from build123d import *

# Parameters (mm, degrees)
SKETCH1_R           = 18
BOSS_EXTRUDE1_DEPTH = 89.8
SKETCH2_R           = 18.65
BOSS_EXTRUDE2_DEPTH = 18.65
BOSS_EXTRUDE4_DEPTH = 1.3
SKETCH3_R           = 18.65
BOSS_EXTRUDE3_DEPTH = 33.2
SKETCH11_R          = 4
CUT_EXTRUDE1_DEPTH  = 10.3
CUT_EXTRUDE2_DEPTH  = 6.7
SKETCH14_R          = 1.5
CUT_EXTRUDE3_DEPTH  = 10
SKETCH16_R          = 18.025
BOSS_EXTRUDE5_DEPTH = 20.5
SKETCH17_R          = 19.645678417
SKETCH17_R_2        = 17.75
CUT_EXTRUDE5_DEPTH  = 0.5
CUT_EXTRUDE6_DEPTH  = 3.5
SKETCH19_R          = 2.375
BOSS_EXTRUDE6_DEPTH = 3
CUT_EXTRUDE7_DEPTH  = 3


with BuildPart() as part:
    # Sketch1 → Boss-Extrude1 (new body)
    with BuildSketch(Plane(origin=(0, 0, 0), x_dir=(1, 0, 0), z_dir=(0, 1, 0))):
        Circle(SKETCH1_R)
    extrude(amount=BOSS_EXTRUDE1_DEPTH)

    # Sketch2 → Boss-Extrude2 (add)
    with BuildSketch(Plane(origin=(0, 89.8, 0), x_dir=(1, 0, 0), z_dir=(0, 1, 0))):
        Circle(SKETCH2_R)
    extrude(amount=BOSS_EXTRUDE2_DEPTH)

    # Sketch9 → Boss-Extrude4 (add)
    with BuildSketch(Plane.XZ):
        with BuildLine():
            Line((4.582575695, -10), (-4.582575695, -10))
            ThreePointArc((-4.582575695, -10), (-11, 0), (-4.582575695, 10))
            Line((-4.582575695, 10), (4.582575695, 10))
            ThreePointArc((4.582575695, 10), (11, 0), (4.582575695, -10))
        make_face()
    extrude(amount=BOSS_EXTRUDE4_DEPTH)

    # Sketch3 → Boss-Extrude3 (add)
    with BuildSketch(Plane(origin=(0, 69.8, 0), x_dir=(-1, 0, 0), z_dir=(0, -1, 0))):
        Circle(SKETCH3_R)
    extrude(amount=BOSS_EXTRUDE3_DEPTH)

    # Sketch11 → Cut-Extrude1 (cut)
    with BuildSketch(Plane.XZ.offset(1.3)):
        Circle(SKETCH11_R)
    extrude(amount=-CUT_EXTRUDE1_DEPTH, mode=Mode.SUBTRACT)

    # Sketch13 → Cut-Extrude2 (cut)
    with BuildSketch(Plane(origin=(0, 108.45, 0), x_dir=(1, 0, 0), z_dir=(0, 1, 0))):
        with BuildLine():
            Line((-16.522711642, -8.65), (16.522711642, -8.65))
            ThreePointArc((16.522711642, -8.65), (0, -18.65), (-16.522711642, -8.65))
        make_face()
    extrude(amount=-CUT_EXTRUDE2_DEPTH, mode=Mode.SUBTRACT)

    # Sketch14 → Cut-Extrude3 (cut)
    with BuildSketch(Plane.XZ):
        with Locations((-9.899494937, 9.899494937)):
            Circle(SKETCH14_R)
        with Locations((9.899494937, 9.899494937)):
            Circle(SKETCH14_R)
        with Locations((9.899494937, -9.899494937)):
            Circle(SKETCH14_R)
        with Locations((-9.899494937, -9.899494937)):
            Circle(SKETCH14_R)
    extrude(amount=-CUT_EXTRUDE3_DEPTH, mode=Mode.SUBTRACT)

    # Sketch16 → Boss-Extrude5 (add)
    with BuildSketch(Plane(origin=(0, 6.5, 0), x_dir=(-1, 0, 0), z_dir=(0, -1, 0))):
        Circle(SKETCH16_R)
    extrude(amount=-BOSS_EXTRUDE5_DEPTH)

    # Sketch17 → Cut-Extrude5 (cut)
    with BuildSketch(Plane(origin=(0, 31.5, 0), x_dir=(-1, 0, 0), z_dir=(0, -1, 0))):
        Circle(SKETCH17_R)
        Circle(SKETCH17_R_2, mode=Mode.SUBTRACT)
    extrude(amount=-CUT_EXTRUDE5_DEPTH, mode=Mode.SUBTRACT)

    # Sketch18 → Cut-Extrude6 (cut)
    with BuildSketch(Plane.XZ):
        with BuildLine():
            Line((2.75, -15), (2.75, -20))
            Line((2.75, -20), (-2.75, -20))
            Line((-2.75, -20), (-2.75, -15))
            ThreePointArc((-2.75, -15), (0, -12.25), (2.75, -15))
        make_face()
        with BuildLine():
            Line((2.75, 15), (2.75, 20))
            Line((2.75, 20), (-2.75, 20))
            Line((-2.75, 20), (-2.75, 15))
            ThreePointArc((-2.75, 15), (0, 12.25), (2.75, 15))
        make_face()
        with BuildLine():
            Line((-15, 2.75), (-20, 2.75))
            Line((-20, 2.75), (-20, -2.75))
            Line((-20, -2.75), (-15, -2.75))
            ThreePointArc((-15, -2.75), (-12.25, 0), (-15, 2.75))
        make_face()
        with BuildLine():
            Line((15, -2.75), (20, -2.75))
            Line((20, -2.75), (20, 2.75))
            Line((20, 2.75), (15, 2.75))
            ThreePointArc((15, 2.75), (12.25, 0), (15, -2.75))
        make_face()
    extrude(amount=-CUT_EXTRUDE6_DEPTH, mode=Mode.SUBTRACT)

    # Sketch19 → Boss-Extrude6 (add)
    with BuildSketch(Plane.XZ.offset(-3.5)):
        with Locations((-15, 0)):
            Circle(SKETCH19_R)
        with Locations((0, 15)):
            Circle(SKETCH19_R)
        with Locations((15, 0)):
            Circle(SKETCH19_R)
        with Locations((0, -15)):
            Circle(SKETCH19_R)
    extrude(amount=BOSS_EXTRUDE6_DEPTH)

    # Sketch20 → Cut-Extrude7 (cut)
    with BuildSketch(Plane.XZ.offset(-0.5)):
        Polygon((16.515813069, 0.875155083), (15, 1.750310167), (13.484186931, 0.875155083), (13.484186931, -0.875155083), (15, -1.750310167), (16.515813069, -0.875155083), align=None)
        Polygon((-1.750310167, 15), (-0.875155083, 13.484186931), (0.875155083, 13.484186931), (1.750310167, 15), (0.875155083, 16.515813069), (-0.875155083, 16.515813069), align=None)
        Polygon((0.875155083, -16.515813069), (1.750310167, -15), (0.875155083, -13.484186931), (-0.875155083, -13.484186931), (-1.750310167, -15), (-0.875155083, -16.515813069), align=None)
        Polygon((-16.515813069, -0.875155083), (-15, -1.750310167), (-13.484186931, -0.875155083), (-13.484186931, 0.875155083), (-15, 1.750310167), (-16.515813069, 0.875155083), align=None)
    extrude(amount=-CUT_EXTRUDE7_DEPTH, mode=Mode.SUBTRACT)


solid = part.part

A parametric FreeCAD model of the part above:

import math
import FreeCAD as App
import Part
import Sketcher
Q = App.Units.Quantity

doc = App.newDocument("Part")
body = doc.addObject("PartDesign::Body", "Body")

sketch1 = body.newObject("Sketcher::SketchObject", "Sketch")
sketch1.AttachmentSupport = (doc.getObject("XZ_Plane"), [""])
sketch1.MapMode = "FlatFace"
sketch1.addGeometry(Part.Circle(App.Vector(0, 0, 0), App.Vector(0, 0, 1), 18), False)
sketch1.addConstraint([
    Sketcher.Constraint("Coincident", 0, 3, -1, 1),
    Sketcher.Constraint("Diameter", 0, 36.0),
])
pad1 = body.newObject("PartDesign::Pad", "Pad")
pad1.Profile = sketch1
pad1.Length = 89.8
pad1.Reversed = True

sketch2 = body.newObject("Sketcher::SketchObject", "Sketch001")
sketch2.AttachmentSupport = (doc.getObject("XZ_Plane"), [""])
sketch2.MapMode = "FlatFace"
sketch2.AttachmentOffset = App.Placement(App.Vector(0, 0, -89.8), App.Rotation())
sketch2.addGeometry(Part.Circle(App.Vector(0, 0, 0), App.Vector(0, 0, 1), 19), False)
sketch2.addConstraint([
    Sketcher.Constraint("Coincident", 0, 3, -1, 1),
    Sketcher.Constraint("Diameter", 0, 37.3),
])
pad2 = body.newObject("PartDesign::Pad", "Pad001")
pad2.Profile = sketch2
pad2.Length = 18.65
pad2.Reversed = True

sketch3 = body.newObject("Sketcher::SketchObject", "Sketch002")
sketch3.AttachmentSupport = (doc.getObject("XZ_Plane"), [""])
sketch3.MapMode = "FlatFace"
sketch3.addGeometry([
    Part.LineSegment(App.Vector(-5, -10, 0), App.Vector(5, -10, 0)),
    Part.ArcOfCircle(Part.Circle(App.Vector(0, 0, 0), App.Vector(0, 0, 1), 11), math.radians(-65), math.radians(65)),
    Part.LineSegment(App.Vector(5, 10, 0), App.Vector(-5, 10, 0)),
    Part.ArcOfCircle(Part.Circle(App.Vector(0, 0, 0), App.Vector(0, 0, 1), 11), math.radians(115), math.radians(245)),
], False)
sketch3.addConstraint([
    Sketcher.Constraint("Coincident", 0, 2, 1, 1),
    Sketcher.Constraint("Coincident", 1, 2, 2, 1),
    Sketcher.Constraint("Coincident", 2, 2, 3, 1),
    Sketcher.Constraint("Coincident", 3, 2, 0, 1),
    Sketcher.Constraint("Horizontal", 0),
    Sketcher.Constraint("Horizontal", 2),
    Sketcher.Constraint("Coincident", 1, 3, -1, 1),
    Sketcher.Constraint("Coincident", 3, 3, -1, 1),
    Sketcher.Constraint("Equal", 1, 3),
    Sketcher.Constraint("Vertical", 0, 2, 1, 2),
    Sketcher.Constraint("Radius", 1, 11.0),
    Sketcher.Constraint("DistanceY", 0, 2, -1, 1, 10.0),
])
pad3 = body.newObject("PartDesign::Pad", "Pad002")
pad3.Profile = sketch3
pad3.Length = 1.3

sketch4 = body.newObject("Sketcher::SketchObject", "Sketch003")
sketch4.AttachmentSupport = (doc.getObject("XZ_Plane"), [""])
sketch4.MapMode = "FlatFace"
sketch4.AttachmentOffset = App.Placement(App.Vector(0, 0, -69.8), App.Rotation())
sketch4.addGeometry(Part.Circle(App.Vector(0, 0, 0), App.Vector(0, 0, 1), 19), False)
sketch4.addConstraint([
    Sketcher.Constraint("Coincident", 0, 3, -1, 1),
    Sketcher.Constraint("Diameter", 0, 37.3),
])
pad4 = body.newObject("PartDesign::Pad", "Pad003")
pad4.Profile = sketch4
pad4.Length = 33.2

sketch5 = body.newObject("Sketcher::SketchObject", "Sketch004")
sketch5.AttachmentSupport = (doc.getObject("XZ_Plane"), [""])
sketch5.MapMode = "FlatFace"
sketch5.AttachmentOffset = App.Placement(App.Vector(0, 0, 1.3), App.Rotation())
sketch5.addGeometry(Part.Circle(App.Vector(0, 0, 0), App.Vector(0, 0, 1), 4), False)
sketch5.addConstraint([
    Sketcher.Constraint("Coincident", 0, 3, -1, 1),
    Sketcher.Constraint("Diameter", 0, 8.0),
])
pocket1 = body.newObject("PartDesign::Pocket", "Pocket")
pocket1.Profile = sketch5
pocket1.Length = 10.3

sketch6 = body.newObject("Sketcher::SketchObject", "Sketch005")
sketch6.AttachmentSupport = (doc.getObject("XZ_Plane"), [""])
sketch6.MapMode = "FlatFace"
sketch6.AttachmentOffset = App.Placement(App.Vector(0, 0, -108.45), App.Rotation())
sketch6.addGeometry([
    Part.LineSegment(App.Vector(17, 9, 0), App.Vector(-17, 9, 0)),
    Part.ArcOfCircle(Part.Circle(App.Vector(0, 0, 0), App.Vector(0, 0, 1), 19), math.radians(28), math.radians(152)),
], False)
sketch6.addConstraint([
    Sketcher.Constraint("Coincident", 0, 1, 1, 1),
    Sketcher.Constraint("Coincident", 1, 2, 0, 2),
    Sketcher.Constraint("Horizontal", 0),
    Sketcher.Constraint("Coincident", 1, 3, -1, 1),
    Sketcher.Constraint("Radius", 1, 18.65),
    Sketcher.Constraint("DistanceY", -1, 1, 0, 1, 8.65),
])
pocket2 = body.newObject("PartDesign::Pocket", "Pocket001")
pocket2.Profile = sketch6
pocket2.Length = 6.7
pocket2.Reversed = True

sketch7 = body.newObject("Sketcher::SketchObject", "Sketch006")
sketch7.AttachmentSupport = (doc.getObject("XZ_Plane"), [""])
sketch7.MapMode = "FlatFace"
sketch7.addGeometry([
    Part.Circle(App.Vector(-9.9, 9.9, 0), App.Vector(0, 0, 1), 1.5),
    Part.Circle(App.Vector(9.9, 9.9, 0), App.Vector(0, 0, 1), 1.5),
    Part.Circle(App.Vector(9.9, -9.9, 0), App.Vector(0, 0, 1), 1.5),
    Part.Circle(App.Vector(-9.9, -9.9, 0), App.Vector(0, 0, 1), 1.5),
], False)
sketch7.addConstraint([
    Sketcher.Constraint("Equal", 0, 1),
    Sketcher.Constraint("Equal", 1, 2),
    Sketcher.Constraint("Equal", 2, 3),
    Sketcher.Constraint("Symmetric", 0, 3, 2, 3, -1, 1),
    Sketcher.Constraint("Symmetric", 1, 3, 3, 3, -1, 1),
    Sketcher.Constraint("Symmetric", 0, 3, 1, 3, -2),
    Sketcher.Constraint("Diameter", 0, 3.0),
    Sketcher.Constraint("DistanceX", 0, 3, 1, 3, 19.79899),
    Sketcher.Constraint("DistanceY", 2, 3, 1, 3, 19.79899),
])
pocket3 = body.newObject("PartDesign::Pocket", "Pocket002")
pocket3.Profile = sketch7
pocket3.Length = 10

sketch8 = body.newObject("Sketcher::SketchObject", "Sketch007")
sketch8.AttachmentSupport = (doc.getObject("XZ_Plane"), [""])
sketch8.MapMode = "FlatFace"
sketch8.AttachmentOffset = App.Placement(App.Vector(0, 0, -6.5), App.Rotation())
sketch8.addGeometry(Part.Circle(App.Vector(0, 0, 0), App.Vector(0, 0, 1), 18), False)
sketch8.addConstraint([
    Sketcher.Constraint("Coincident", 0, 3, -1, 1),
    Sketcher.Constraint("Diameter", 0, 36.05),
])
pad5 = body.newObject("PartDesign::Pad", "Pad004")
pad5.Profile = sketch8
pad5.Length = 20.5
pad5.Reversed = True

sketch9 = body.newObject("Sketcher::SketchObject", "Sketch008")
sketch9.AttachmentSupport = (doc.getObject("XZ_Plane"), [""])
sketch9.MapMode = "FlatFace"
sketch9.AttachmentOffset = App.Placement(App.Vector(0, 0, -31.5), App.Rotation())
sketch9.addGeometry([
    Part.Circle(App.Vector(0, 0, 0), App.Vector(0, 0, 1), 20),
    Part.Circle(App.Vector(0, 0, 0), App.Vector(0, 0, 1), 18),
], False)
sketch9.addConstraint([
    Sketcher.Constraint("Coincident", 0, 3, -1, 1),
    Sketcher.Constraint("Coincident", 1, 3, -1, 1),
    Sketcher.Constraint("Diameter", 1, 35.5),
    Sketcher.Constraint("Diameter", 0, 39.291357),
])
pocket4 = body.newObject("PartDesign::Pocket", "Pocket003")
pocket4.Profile = sketch9
pocket4.Length = 0.5

sketch10 = body.newObject("Sketcher::SketchObject", "Sketch009")
sketch10.AttachmentSupport = (doc.getObject("XZ_Plane"), [""])
sketch10.MapMode = "FlatFace"
sketch10.addGeometry([
    Part.LineSegment(App.Vector(2.8, -20, 0), App.Vector(2.8, -15, 0)),
    Part.ArcOfCircle(Part.Circle(App.Vector(0, -15, 0), App.Vector(0, 0, 1), 2.8), math.radians(0), math.radians(180)),
    Part.LineSegment(App.Vector(-2.8, -15, 0), App.Vector(-2.8, -20, 0)),
    Part.LineSegment(App.Vector(-2.8, -20, 0), App.Vector(2.8, -20, 0)),
    Part.LineSegment(App.Vector(2.8, 15, 0), App.Vector(2.8, 20, 0)),
    Part.LineSegment(App.Vector(2.8, 20, 0), App.Vector(-2.8, 20, 0)),
    Part.LineSegment(App.Vector(-2.8, 20, 0), App.Vector(-2.8, 15, 0)),
    Part.ArcOfCircle(Part.Circle(App.Vector(0, 15, 0), App.Vector(0, 0, 1), 2.8), math.radians(180), math.radians(360)),
    Part.LineSegment(App.Vector(-15, 2.8, 0), App.Vector(-20, 2.8, 0)),
    Part.LineSegment(App.Vector(-20, 2.8, 0), App.Vector(-20, -2.8, 0)),
    Part.LineSegment(App.Vector(-20, -2.8, 0), App.Vector(-15, -2.8, 0)),
    Part.ArcOfCircle(Part.Circle(App.Vector(-15, 0, 0), App.Vector(0, 0, 1), 2.8), math.radians(-90), math.radians(90)),
    Part.LineSegment(App.Vector(15, -2.8, 0), App.Vector(20, -2.8, 0)),
    Part.LineSegment(App.Vector(20, -2.8, 0), App.Vector(20, 2.8, 0)),
    Part.LineSegment(App.Vector(20, 2.8, 0), App.Vector(15, 2.8, 0)),
    Part.ArcOfCircle(Part.Circle(App.Vector(15, 0, 0), App.Vector(0, 0, 1), 2.8), math.radians(90), math.radians(270)),
], False)
sketch10.addConstraint([
    Sketcher.Constraint("Tangent", 0, 2, 1, 1),
    Sketcher.Constraint("Tangent", 1, 2, 2, 1),
    Sketcher.Constraint("Coincident", 2, 2, 3, 1),
    Sketcher.Constraint("Coincident", 3, 2, 0, 1),
    Sketcher.Constraint("Coincident", 4, 2, 5, 1),
    Sketcher.Constraint("Coincident", 5, 2, 6, 1),
    Sketcher.Constraint("Tangent", 6, 2, 7, 1),
    Sketcher.Constraint("Tangent", 7, 2, 4, 1),
    Sketcher.Constraint("Coincident", 8, 2, 9, 1),
    Sketcher.Constraint("Coincident", 9, 2, 10, 1),
    Sketcher.Constraint("Tangent", 10, 2, 11, 1),
    Sketcher.Constraint("Tangent", 11, 2, 8, 1),
    Sketcher.Constraint("Coincident", 12, 2, 13, 1),
    Sketcher.Constraint("Coincident", 13, 2, 14, 1),
    Sketcher.Constraint("Tangent", 14, 2, 15, 1),
    Sketcher.Constraint("Tangent", 15, 2, 12, 1),
    Sketcher.Constraint("Vertical", 0),
    Sketcher.Constraint("Vertical", 2),
    Sketcher.Constraint("Horizontal", 3),
    Sketcher.Constraint("Vertical", 4),
    Sketcher.Constraint("Horizontal", 5),
    Sketcher.Constraint("Vertical", 6),
    Sketcher.Constraint("Horizontal", 8),
    Sketcher.Constraint("Vertical", 9),
    Sketcher.Constraint("Horizontal", 10),
    Sketcher.Constraint("Horizontal", 12),
    Sketcher.Constraint("Vertical", 13),
    Sketcher.Constraint("Horizontal", 14),
    Sketcher.Constraint("Equal", 1, 7),
    Sketcher.Constraint("Equal", 7, 11),
    Sketcher.Constraint("Equal", 11, 15),
    Sketcher.Constraint("Symmetric", 1, 3, 7, 3, -1, 1),
    Sketcher.Constraint("Symmetric", 11, 3, 15, 3, -1, 1),
    Sketcher.Constraint("Symmetric", 9, 2, 12, 2, -2),
    Sketcher.Constraint("Symmetric", 3, 2, 4, 2, -1),
    Sketcher.Constraint("Equal", 14, 0),
    Sketcher.Constraint("DistanceX", 8, 2, 8, 1, 5.0),
    Sketcher.Constraint("Radius", 1, 2.75),
    Sketcher.Constraint("DistanceY", 1, 3, -1, 1, 15.0),
    Sketcher.Constraint("DistanceX", 11, 3, -1, 1, 15.0),
])
pocket5 = body.newObject("PartDesign::Pocket", "Pocket004")
pocket5.Profile = sketch10
pocket5.Length = 3.5

sketch11 = body.newObject("Sketcher::SketchObject", "Sketch010")
sketch11.AttachmentSupport = (doc.getObject("XZ_Plane"), [""])
sketch11.MapMode = "FlatFace"
sketch11.AttachmentOffset = App.Placement(App.Vector(0, 0, -3.5), App.Rotation())
sketch11.addGeometry([
    Part.Circle(App.Vector(-15, 0, 0), App.Vector(0, 0, 1), 2.4),
    Part.Circle(App.Vector(0, 15, 0), App.Vector(0, 0, 1), 2.4),
    Part.Circle(App.Vector(15, 0, 0), App.Vector(0, 0, 1), 2.4),
    Part.Circle(App.Vector(0, -15, 0), App.Vector(0, 0, 1), 2.4),
], False)
sketch11.addConstraint([
    Sketcher.Constraint("Equal", 0, 1),
    Sketcher.Constraint("Equal", 1, 2),
    Sketcher.Constraint("Equal", 2, 3),
    Sketcher.Constraint("Symmetric", 0, 3, 2, 3, -1, 1),
    Sketcher.Constraint("Symmetric", 1, 3, 3, 3, -1, 1),
    Sketcher.Constraint("PointOnObject", 0, 3, -1),
    Sketcher.Constraint("PointOnObject", 1, 3, -2),
    Sketcher.Constraint("Diameter", 0, 4.75),
    Sketcher.Constraint("DistanceX", 0, 3, -1, 1, 15.0),
    Sketcher.Constraint("DistanceY", -1, 1, 1, 3, 15.0),
])
pad6 = body.newObject("PartDesign::Pad", "Pad005")
pad6.Profile = sketch11
pad6.Length = 3

sketch12 = body.newObject("Sketcher::SketchObject", "Sketch011")
sketch12.AttachmentSupport = (doc.getObject("XZ_Plane"), [""])
sketch12.MapMode = "FlatFace"
sketch12.AttachmentOffset = App.Placement(App.Vector(0, 0, -0.5), App.Rotation())
sketch12.addGeometry([
    Part.LineSegment(App.Vector(16.5, 0.9, 0), App.Vector(15, 1.8, 0)),
    Part.LineSegment(App.Vector(15, 1.8, 0), App.Vector(13.5, 0.9, 0)),
    Part.LineSegment(App.Vector(13.5, 0.9, 0), App.Vector(13.5, -0.9, 0)),
    Part.LineSegment(App.Vector(13.5, -0.9, 0), App.Vector(15, -1.8, 0)),
    Part.LineSegment(App.Vector(15, -1.8, 0), App.Vector(16.5, -0.9, 0)),
    Part.LineSegment(App.Vector(16.5, -0.9, 0), App.Vector(16.5, 0.9, 0)),
    Part.LineSegment(App.Vector(-1.8, 15, 0), App.Vector(-0.9, 13.5, 0)),
    Part.LineSegment(App.Vector(-0.9, 13.5, 0), App.Vector(0.9, 13.5, 0)),
    Part.LineSegment(App.Vector(0.9, 13.5, 0), App.Vector(1.8, 15, 0)),
    Part.LineSegment(App.Vector(1.8, 15, 0), App.Vector(0.9, 16.5, 0)),
    Part.LineSegment(App.Vector(0.9, 16.5, 0), App.Vector(-0.9, 16.5, 0)),
    Part.LineSegment(App.Vector(-0.9, 16.5, 0), App.Vector(-1.8, 15, 0)),
    Part.LineSegment(App.Vector(0.9, -16.5, 0), App.Vector(1.8, -15, 0)),
    Part.LineSegment(App.Vector(1.8, -15, 0), App.Vector(0.9, -13.5, 0)),
    Part.LineSegment(App.Vector(0.9, -13.5, 0), App.Vector(-0.9, -13.5, 0)),
    Part.LineSegment(App.Vector(-0.9, -13.5, 0), App.Vector(-1.8, -15, 0)),
    Part.LineSegment(App.Vector(-1.8, -15, 0), App.Vector(-0.9, -16.5, 0)),
    Part.LineSegment(App.Vector(-0.9, -16.5, 0), App.Vector(0.9, -16.5, 0)),
    Part.LineSegment(App.Vector(-16.5, -0.9, 0), App.Vector(-15, -1.8, 0)),
    Part.LineSegment(App.Vector(-15, -1.8, 0), App.Vector(-13.5, -0.9, 0)),
    Part.LineSegment(App.Vector(-13.5, -0.9, 0), App.Vector(-13.5, 0.9, 0)),
    Part.LineSegment(App.Vector(-13.5, 0.9, 0), App.Vector(-15, 1.8, 0)),
    Part.LineSegment(App.Vector(-15, 1.8, 0), App.Vector(-16.5, 0.9, 0)),
    Part.LineSegment(App.Vector(-16.5, 0.9, 0), App.Vector(-16.5, -0.9, 0)),
], False)
sketch12.addConstraint([
    Sketcher.Constraint("Coincident", 0, 2, 1, 1),
    Sketcher.Constraint("Coincident", 1, 2, 2, 1),
    Sketcher.Constraint("Coincident", 2, 2, 3, 1),
    Sketcher.Constraint("Coincident", 3, 2, 4, 1),
    Sketcher.Constraint("Coincident", 4, 2, 5, 1),
    Sketcher.Constraint("Coincident", 5, 2, 0, 1),
    Sketcher.Constraint("Coincident", 6, 2, 7, 1),
    Sketcher.Constraint("Coincident", 7, 2, 8, 1),
    Sketcher.Constraint("Coincident", 8, 2, 9, 1),
    Sketcher.Constraint("Coincident", 9, 2, 10, 1),
    Sketcher.Constraint("Coincident", 10, 2, 11, 1),
    Sketcher.Constraint("Coincident", 11, 2, 6, 1),
    Sketcher.Constraint("Coincident", 12, 2, 13, 1),
    Sketcher.Constraint("Coincident", 13, 2, 14, 1),
    Sketcher.Constraint("Coincident", 14, 2, 15, 1),
    Sketcher.Constraint("Coincident", 15, 2, 16, 1),
    Sketcher.Constraint("Coincident", 16, 2, 17, 1),
    Sketcher.Constraint("Coincident", 17, 2, 12, 1),
    Sketcher.Constraint("Coincident", 18, 2, 19, 1),
    Sketcher.Constraint("Coincident", 19, 2, 20, 1),
    Sketcher.Constraint("Coincident", 20, 2, 21, 1),
    Sketcher.Constraint("Coincident", 21, 2, 22, 1),
    Sketcher.Constraint("Coincident", 22, 2, 23, 1),
    Sketcher.Constraint("Coincident", 23, 2, 18, 1),
    Sketcher.Constraint("Vertical", 2),
    Sketcher.Constraint("Vertical", 5),
    Sketcher.Constraint("Horizontal", 7),
    Sketcher.Constraint("Horizontal", 10),
    Sketcher.Constraint("Horizontal", 14),
    Sketcher.Constraint("Horizontal", 17),
    Sketcher.Constraint("Vertical", 20),
    Sketcher.Constraint("Vertical", 23),
    Sketcher.Constraint("Symmetric", 11, 2, 12, 2, -1, 1),
    Sketcher.Constraint("Symmetric", 6, 2, 13, 2, -1, 1),
    Sketcher.Constraint("Symmetric", 8, 2, 15, 2, -1, 1),
    Sketcher.Constraint("Symmetric", 9, 2, 16, 2, -1, 1),
    Sketcher.Constraint("Symmetric", 0, 2, 18, 2, -1, 1),
    Sketcher.Constraint("Symmetric", 1, 2, 19, 2, -1, 1),
    Sketcher.Constraint("Symmetric", 3, 2, 21, 2, -1, 1),
    Sketcher.Constraint("Symmetric", 4, 2, 22, 2, -1, 1),
    Sketcher.Constraint("Symmetric", 8, 2, 11, 2, -2),
    Sketcher.Constraint("Symmetric", 3, 2, 18, 2, -2),
    Sketcher.Constraint("Parallel", 0, 3),
    Sketcher.Constraint("Parallel", 1, 4),
    Sketcher.Constraint("Perpendicular", 4, 6),
    Sketcher.Constraint("Perpendicular", 3, 8),
    Sketcher.Constraint("Parallel", 6, 9),
    Sketcher.Constraint("Parallel", 8, 11),
    Sketcher.Constraint("Parallel", 11, 12),
    Sketcher.Constraint("Parallel", 12, 15),
    Sketcher.Constraint("Perpendicular", 15, 18),
    Sketcher.Constraint("Parallel", 18, 21),
    Sketcher.Constraint("Horizontal", 2, 2, 4, 2),
    Sketcher.Constraint("Horizontal", 1, 2, 5, 2),
    Sketcher.Constraint("Vertical", 7, 2, 9, 2),
    Sketcher.Constraint("Equal", 17, 2),
    Sketcher.Constraint("Equal", 4, 6),
    Sketcher.Constraint("Angle", 0, Q("150 deg")),
    Sketcher.Constraint("DistanceX", -1, 1, 0, 2, 15.0),
    Sketcher.Constraint("DistanceY", -1, 1, 8, 2, 15.0),
    Sketcher.Constraint("DistanceX", 7, 1, 7, 2, 1.75031),
    Sketcher.Constraint("Distance", 0, 1.75031),
])
pocket6 = body.newObject("PartDesign::Pocket", "Pocket005")
pocket6.Profile = sketch12
pocket6.Length = 3

doc.recompute()
